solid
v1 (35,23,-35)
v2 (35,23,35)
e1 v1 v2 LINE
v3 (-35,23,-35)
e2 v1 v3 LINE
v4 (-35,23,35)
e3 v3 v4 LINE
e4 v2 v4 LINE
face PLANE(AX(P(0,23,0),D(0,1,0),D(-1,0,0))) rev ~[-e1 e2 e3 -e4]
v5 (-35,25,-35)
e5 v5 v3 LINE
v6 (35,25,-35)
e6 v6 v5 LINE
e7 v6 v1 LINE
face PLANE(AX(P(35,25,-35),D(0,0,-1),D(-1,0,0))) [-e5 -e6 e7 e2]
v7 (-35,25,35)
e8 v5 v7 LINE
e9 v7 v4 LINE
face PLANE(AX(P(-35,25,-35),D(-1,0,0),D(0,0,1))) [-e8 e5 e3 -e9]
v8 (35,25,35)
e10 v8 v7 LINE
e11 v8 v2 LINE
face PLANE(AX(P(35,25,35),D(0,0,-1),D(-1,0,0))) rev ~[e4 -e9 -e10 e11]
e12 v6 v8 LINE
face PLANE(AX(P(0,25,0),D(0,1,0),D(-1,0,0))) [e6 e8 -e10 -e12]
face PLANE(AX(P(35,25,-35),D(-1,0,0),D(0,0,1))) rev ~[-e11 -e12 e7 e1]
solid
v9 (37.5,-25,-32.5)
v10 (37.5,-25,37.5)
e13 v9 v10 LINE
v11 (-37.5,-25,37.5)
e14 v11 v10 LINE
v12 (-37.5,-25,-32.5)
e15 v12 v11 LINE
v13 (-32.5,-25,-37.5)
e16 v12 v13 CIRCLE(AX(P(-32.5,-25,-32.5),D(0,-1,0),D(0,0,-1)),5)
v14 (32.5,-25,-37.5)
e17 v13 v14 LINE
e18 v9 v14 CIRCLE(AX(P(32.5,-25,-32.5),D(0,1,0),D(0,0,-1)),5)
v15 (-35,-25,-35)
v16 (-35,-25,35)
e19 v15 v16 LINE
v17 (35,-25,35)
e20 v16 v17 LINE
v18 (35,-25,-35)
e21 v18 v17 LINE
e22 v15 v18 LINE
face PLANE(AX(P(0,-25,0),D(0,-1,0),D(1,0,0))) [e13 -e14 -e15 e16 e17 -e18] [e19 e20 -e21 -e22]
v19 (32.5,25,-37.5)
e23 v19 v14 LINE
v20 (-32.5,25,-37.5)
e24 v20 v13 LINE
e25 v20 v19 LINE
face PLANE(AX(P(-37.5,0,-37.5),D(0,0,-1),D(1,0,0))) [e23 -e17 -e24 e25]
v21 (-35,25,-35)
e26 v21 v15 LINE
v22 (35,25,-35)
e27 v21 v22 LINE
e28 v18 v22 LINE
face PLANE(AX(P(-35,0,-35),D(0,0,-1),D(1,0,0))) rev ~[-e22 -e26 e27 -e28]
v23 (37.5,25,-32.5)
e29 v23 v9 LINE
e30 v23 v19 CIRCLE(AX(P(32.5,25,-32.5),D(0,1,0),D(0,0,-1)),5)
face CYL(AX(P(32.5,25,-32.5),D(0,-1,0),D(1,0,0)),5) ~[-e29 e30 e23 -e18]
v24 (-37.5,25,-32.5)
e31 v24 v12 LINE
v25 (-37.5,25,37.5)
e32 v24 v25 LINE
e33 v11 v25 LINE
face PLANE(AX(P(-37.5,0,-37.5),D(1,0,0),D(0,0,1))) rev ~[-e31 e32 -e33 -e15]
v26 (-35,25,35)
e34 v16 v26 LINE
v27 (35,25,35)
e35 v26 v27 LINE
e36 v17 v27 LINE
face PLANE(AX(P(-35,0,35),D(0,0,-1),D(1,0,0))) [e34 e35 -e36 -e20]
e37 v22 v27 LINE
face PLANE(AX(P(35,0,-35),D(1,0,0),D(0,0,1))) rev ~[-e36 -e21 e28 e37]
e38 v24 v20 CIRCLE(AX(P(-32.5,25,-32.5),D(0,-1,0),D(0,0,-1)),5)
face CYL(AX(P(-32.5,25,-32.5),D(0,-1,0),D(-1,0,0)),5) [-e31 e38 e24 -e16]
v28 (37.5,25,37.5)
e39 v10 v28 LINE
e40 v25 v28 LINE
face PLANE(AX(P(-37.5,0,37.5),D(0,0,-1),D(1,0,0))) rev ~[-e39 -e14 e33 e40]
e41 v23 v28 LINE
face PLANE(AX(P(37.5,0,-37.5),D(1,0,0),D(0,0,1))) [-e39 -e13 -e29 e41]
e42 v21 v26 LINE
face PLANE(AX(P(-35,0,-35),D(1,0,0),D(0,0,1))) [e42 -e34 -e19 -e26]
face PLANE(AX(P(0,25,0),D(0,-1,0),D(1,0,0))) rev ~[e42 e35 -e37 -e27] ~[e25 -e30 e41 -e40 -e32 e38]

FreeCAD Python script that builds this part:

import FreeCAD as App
import Part
import Sketcher
from FreeCAD import Vector


def edges_at(feature, points):
    """Names of the edges that pass closest to the given points."""
    edges = feature.Shape.Edges
    near = lambda p: min(range(len(edges)), key=lambda i: edges[i].distToShape(Part.Vertex(*p))[0])
    return sorted({f"Edge{near(p) + 1}" for p in points})


def add_polygon(sketch, points):
    """Adds a closed chain of lines whose ends are joined by coincident constraints."""
    first, n = sketch.GeometryCount, len(points)
    for a, b in zip(points, points[1:] + points[:1]):
        sketch.addGeometry(Part.LineSegment(App.Vector(*a, 0), App.Vector(*b, 0)), False)
    for i in range(n):
        sketch.addConstraint(Sketcher.Constraint("Coincident", first + i, 2, first + (i + 1) % n, 1))

doc = App.newDocument("Part")
body = doc.addObject("PartDesign::Body", "Body")

# Sketch on XZ plane
sketch1 = body.newObject("Sketcher::SketchObject", "Sketch")
sketch1.AttachmentSupport = (doc.getObject("XZ_Plane"), [""])
sketch1.MapMode = "FlatFace"
add_polygon(sketch1, [(-38, 38), (-38, -38), (38, -38), (38, 38)])  # lines 0-3
add_polygon(sketch1, [(35, -35), (-35, -35), (-35, 35), (35, 35)])  # lines 4-7
sketch1.addConstraint([
    Sketcher.Constraint("Vertical", 0),
    Sketcher.Constraint("Horizontal", 1),
    Sketcher.Constraint("Vertical", 2),
    Sketcher.Constraint("Horizontal", 3),
    Sketcher.Constraint("Horizontal", 4),
    Sketcher.Constraint("Vertical", 5),
    Sketcher.Constraint("Horizontal", 6),
    Sketcher.Constraint("Vertical", 7),
    Sketcher.Constraint("Symmetric", 0, 2, 2, 2, -1, 1),
    Sketcher.Constraint("Symmetric", 4, 2, 6, 2, -1, 1),
    Sketcher.Constraint("Equal", 3, 0),
    Sketcher.Constraint("Equal", 6, 5),
    Sketcher.Constraint("DistanceX", 1, 1, 1, 2, 75.0),
    Sketcher.Constraint("DistanceX", 4, 2, 4, 1, 70.0),
])
pad1 = body.newObject("PartDesign::Pad", "Pad")
pad1.Profile = sketch1
pad1.Length = 50
pad1.Midplane = True
doc.recompute()

fillet = body.newObject("PartDesign::Fillet", "Fillet")
fillet.Base = (pad1, edges_at(pad1, [(-37.5, 0, -37.5), (37.5, 0, -37.5)]))
fillet.Radius = 5
body2 = doc.addObject("PartDesign::Body", "Body001")

# Sketch on XZ plane
sketch2 = body2.newObject("Sketcher::SketchObject", "Sketch001")
sketch2.AttachmentSupport = (doc.getObject("XZ_Plane001"), [""])
sketch2.MapMode = "FlatFace"
sketch2.AttachmentOffset = App.Placement(Vector(0, 0, -25), App.Rotation())
add_polygon(sketch2, [(35, 35), (35, -35), (-35, -35), (-35, 35)])  # lines 0-3
sketch2.addConstraint([
    Sketcher.Constraint("Vertical", 0),
    Sketcher.Constraint("Horizontal", 1),
    Sketcher.Constraint("Vertical", 2),
    Sketcher.Constraint("Horizontal", 3),
    Sketcher.Constraint("Symmetric", 0, 2, 2, 2, -1, 1),
    Sketcher.Constraint("Equal", 3, 0),
    Sketcher.Constraint("DistanceX", 1, 2, 1, 1, 70.0),
])
pad2 = body2.newObject("PartDesign::Pad", "Pad001")
pad2.Profile = sketch2
pad2.Length = 2

doc.recompute()
